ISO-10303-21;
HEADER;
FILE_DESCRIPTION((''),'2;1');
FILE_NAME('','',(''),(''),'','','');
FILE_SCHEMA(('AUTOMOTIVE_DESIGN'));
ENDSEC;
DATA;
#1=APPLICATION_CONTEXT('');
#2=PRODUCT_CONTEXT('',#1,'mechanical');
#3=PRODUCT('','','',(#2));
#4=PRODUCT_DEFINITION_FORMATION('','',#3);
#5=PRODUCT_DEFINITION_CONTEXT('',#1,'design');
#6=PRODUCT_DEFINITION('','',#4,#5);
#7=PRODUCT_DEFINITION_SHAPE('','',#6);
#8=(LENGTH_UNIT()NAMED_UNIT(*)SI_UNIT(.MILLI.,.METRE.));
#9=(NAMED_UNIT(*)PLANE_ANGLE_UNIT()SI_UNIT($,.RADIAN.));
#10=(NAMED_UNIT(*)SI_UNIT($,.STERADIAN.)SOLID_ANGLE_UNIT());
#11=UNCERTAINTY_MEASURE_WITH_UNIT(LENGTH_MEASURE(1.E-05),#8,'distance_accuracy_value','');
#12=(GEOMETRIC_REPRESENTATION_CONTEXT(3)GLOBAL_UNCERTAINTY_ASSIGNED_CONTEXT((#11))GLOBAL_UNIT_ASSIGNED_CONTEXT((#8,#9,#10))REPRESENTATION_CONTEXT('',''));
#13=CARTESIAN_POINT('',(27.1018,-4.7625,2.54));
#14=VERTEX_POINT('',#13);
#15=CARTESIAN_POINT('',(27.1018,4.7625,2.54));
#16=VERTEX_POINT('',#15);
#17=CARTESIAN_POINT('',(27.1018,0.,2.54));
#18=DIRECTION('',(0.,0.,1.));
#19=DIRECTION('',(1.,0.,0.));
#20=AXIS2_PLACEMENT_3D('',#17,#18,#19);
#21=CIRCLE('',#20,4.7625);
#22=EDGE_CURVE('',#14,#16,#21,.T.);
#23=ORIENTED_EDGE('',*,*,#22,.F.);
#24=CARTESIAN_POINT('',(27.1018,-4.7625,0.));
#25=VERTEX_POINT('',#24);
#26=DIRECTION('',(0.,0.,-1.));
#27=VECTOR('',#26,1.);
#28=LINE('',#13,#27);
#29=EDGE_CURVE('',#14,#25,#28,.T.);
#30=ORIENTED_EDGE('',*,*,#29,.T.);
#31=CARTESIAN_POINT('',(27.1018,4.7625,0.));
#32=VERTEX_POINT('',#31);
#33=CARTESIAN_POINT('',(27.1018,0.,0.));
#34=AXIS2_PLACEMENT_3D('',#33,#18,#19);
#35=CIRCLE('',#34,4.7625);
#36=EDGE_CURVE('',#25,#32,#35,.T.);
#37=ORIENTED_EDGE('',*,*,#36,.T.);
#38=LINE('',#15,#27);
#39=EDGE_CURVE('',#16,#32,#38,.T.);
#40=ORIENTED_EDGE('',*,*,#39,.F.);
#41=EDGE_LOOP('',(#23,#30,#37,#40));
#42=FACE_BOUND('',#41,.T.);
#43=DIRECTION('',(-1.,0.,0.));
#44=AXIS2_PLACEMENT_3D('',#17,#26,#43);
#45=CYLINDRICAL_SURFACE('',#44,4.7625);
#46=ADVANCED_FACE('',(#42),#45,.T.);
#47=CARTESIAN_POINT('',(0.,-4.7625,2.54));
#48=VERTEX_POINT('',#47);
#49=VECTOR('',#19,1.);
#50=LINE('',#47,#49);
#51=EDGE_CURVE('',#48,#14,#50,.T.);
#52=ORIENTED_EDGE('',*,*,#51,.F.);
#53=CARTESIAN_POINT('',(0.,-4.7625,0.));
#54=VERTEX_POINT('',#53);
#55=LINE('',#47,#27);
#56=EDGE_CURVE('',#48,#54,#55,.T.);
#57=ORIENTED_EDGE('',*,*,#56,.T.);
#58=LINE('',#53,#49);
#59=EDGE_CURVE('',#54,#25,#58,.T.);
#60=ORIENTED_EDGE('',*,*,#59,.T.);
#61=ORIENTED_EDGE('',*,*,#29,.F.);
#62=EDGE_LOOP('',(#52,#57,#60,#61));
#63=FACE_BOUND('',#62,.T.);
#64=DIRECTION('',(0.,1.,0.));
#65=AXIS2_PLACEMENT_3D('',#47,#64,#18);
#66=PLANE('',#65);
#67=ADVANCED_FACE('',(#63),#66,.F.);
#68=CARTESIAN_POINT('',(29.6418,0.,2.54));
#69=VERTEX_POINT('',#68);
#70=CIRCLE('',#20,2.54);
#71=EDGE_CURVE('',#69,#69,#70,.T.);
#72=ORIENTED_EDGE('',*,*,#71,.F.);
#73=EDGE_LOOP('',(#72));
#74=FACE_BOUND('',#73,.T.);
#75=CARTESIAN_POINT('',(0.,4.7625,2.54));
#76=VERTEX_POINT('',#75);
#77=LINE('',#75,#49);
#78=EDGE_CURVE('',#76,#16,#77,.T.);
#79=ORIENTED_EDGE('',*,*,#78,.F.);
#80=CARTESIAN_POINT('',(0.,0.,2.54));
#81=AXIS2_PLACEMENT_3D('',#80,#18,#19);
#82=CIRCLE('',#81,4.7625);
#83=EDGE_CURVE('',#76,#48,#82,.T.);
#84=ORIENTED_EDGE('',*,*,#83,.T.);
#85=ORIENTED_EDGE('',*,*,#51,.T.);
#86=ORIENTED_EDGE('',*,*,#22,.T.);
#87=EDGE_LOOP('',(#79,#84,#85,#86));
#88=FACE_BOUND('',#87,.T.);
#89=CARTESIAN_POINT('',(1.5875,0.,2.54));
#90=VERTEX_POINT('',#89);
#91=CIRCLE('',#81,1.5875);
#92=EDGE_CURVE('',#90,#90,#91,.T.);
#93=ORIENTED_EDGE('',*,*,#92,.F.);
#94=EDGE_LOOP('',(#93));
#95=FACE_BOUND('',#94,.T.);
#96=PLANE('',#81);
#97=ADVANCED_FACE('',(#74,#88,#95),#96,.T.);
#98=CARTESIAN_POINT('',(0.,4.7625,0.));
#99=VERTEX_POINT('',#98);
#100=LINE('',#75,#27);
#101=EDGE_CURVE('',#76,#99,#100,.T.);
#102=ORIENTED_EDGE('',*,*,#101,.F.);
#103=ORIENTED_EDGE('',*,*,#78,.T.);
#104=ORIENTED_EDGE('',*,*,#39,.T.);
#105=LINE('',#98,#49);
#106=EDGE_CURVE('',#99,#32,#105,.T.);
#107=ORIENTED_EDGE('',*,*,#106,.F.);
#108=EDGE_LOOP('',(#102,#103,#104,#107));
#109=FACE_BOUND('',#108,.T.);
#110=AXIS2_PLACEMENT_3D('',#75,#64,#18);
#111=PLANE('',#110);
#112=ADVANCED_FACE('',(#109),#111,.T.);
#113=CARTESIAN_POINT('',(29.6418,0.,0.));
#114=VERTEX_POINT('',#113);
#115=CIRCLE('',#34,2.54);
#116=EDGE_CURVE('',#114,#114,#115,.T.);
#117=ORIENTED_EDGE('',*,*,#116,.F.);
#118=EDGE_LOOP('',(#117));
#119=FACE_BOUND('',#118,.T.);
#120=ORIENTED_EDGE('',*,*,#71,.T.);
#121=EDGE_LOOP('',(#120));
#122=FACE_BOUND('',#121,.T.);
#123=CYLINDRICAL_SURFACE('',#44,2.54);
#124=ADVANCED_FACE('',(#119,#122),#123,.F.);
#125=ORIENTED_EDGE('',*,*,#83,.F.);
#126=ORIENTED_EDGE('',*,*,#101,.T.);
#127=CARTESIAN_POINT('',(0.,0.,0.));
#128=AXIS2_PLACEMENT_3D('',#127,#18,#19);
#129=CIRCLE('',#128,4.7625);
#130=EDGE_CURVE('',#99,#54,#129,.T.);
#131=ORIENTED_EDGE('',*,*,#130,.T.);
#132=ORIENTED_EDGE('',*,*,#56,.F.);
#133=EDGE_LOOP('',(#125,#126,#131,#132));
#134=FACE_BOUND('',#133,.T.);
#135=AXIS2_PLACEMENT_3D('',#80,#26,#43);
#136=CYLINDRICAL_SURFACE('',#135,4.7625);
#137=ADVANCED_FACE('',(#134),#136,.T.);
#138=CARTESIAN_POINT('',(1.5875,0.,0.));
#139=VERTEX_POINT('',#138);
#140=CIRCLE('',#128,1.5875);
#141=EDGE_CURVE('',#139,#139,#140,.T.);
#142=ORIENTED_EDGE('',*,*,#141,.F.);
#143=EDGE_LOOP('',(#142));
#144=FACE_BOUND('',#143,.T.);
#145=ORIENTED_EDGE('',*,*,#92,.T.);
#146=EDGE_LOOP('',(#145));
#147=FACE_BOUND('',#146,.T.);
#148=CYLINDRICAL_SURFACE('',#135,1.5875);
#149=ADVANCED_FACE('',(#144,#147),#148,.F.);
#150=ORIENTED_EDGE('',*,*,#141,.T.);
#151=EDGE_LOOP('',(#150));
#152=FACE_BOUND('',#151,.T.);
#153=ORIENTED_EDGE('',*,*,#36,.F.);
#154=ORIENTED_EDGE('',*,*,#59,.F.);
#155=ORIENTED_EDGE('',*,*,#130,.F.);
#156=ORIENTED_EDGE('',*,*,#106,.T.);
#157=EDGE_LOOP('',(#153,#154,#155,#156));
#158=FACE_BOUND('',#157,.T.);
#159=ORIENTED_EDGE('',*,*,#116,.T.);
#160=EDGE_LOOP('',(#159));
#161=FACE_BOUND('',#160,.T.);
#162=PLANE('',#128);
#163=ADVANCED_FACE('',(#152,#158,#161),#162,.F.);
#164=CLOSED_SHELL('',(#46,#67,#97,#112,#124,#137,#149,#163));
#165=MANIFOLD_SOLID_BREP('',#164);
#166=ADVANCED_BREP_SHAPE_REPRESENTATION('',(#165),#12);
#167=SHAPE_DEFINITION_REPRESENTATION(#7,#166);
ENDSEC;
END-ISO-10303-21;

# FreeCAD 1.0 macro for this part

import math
import FreeCAD as App
import Part
import Sketcher
Q = App.Units.Quantity

doc = App.newDocument("Part")
body = doc.addObject("PartDesign::Body", "Body")

# Sketch on XY plane
sketch1 = body.newObject("Sketcher::SketchObject", "Sketch")
sketch1.AttachmentSupport = (doc.getObject("XY_Plane"), [""])
sketch1.MapMode = "FlatFace"
sketch1.addGeometry([
    Part.ArcOfCircle(Part.Circle(App.Vector(0, 0, 0), App.Vector(0, 0, 1), 4.8), math.radians(90), math.radians(270)),  # 0
    Part.LineSegment(App.Vector(0, -4.8, 0), App.Vector(27.1, -4.8, 0)),  # 1
    Part.ArcOfCircle(Part.Circle(App.Vector(27.1, 0, 0), App.Vector(0, 0, 1), 4.8), math.radians(-90), math.radians(90)),  # 2
    Part.LineSegment(App.Vector(27.1, 4.8, 0), App.Vector(0, 4.8, 0)),  # 3
    Part.Circle(App.Vector(0, 0, 0), App.Vector(0, 0, 1), 1.6),  # 4
    Part.Circle(App.Vector(27.1, 0, 0), App.Vector(0, 0, 1), 2.5),  # 5
], False)
sketch1.addConstraint([
    Sketcher.Constraint("Tangent", 0, 2, 1, 1),
    Sketcher.Constraint("Tangent", 1, 2, 2, 1),
    Sketcher.Constraint("Tangent", 2, 2, 3, 1),
    Sketcher.Constraint("Tangent", 3, 2, 0, 1),
    Sketcher.Constraint("Horizontal", 1),
    Sketcher.Constraint("Horizontal", 3),
    Sketcher.Constraint("Coincident", 0, 3, -1, 1),
    Sketcher.Constraint("Coincident", 4, 3, -1, 1),
    Sketcher.Constraint("Coincident", 5, 3, 2, 3),
    Sketcher.Constraint("Diameter", 5, Q("0.2 in")),
    Sketcher.Constraint("Diameter", 4, Q("0.125 in")),
    Sketcher.Constraint("Radius", 0, Q("0.1875 in")),
    Sketcher.Constraint("DistanceX", 1, 1, 1, 2, Q("1.067 in")),
])
pad1 = body.newObject("PartDesign::Pad", "Pad")
pad1.Profile = sketch1
pad1.Length = Q("0.1 in")

doc.recompute()
